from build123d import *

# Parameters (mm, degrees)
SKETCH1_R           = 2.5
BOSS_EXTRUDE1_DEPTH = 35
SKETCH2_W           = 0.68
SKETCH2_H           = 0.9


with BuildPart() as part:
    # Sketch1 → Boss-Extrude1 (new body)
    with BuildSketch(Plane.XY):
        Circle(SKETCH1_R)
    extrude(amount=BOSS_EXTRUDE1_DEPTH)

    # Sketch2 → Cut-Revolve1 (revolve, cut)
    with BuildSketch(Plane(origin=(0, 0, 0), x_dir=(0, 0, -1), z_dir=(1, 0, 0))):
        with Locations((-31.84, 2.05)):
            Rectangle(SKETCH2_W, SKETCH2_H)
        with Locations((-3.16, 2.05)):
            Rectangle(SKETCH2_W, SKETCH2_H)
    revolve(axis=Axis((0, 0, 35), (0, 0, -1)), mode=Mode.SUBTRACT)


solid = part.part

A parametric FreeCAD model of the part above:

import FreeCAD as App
import Part
import Sketcher

V = App.Vector
Q = App.Units.Quantity

doc = App.newDocument("Part")
body = doc.addObject("PartDesign::Body", "Body")

sketch1 = body.newObject("Sketcher::SketchObject", "Sketch")
sketch1.AttachmentSupport = (doc.getObject("XY_Plane"), [""])
sketch1.MapMode = "FlatFace"
sketch1.addGeometry(Part.Circle(V(0, 0, 0), V(0, 0, 1), 2.5), False)
sketch1.addConstraint([
    Sketcher.Constraint("Coincident", 0, 3, -1, 1),
    Sketcher.Constraint("Diameter", 0, Q("5 mm")),
])
pad1 = body.newObject("PartDesign::Pad", "Pad")
pad1.Profile = sketch1
pad1.Length = 35

sketch2 = body.newObject("Sketcher::SketchObject", "Sketch001")
sketch2.AttachmentSupport = (doc.getObject("YZ_Plane"), [""])
sketch2.MapMode = "FlatFace"
sketch2.addGeometry([
    Part.LineSegment(V(2.5, 32.2, 0), V(1.6, 32.2, 0)),
    Part.LineSegment(V(1.6, 32.2, 0), V(1.6, 31.5, 0)),
    Part.LineSegment(V(1.6, 31.5, 0), V(2.5, 31.5, 0)),
    Part.LineSegment(V(2.5, 31.5, 0), V(2.5, 32.2, 0)),
    Part.LineSegment(V(2.5, 3.5, 0), V(1.6, 3.5, 0)),
    Part.LineSegment(V(1.6, 3.5, 0), V(1.6, 2.8, 0)),
    Part.LineSegment(V(1.6, 2.8, 0), V(2.5, 2.8, 0)),
    Part.LineSegment(V(2.5, 2.8, 0), V(2.5, 3.5, 0)),
], False)
sketch2.addConstraint([
    Sketcher.Constraint("Coincident", 0, 2, 1, 1),
    Sketcher.Constraint("Coincident", 1, 2, 2, 1),
    Sketcher.Constraint("Coincident", 2, 2, 3, 1),
    Sketcher.Constraint("Coincident", 3, 2, 0, 1),
    Sketcher.Constraint("Coincident", 4, 2, 5, 1),
    Sketcher.Constraint("Coincident", 5, 2, 6, 1),
    Sketcher.Constraint("Coincident", 6, 2, 7, 1),
    Sketcher.Constraint("Coincident", 7, 2, 4, 1),
    Sketcher.Constraint("Horizontal", 0),
    Sketcher.Constraint("Vertical", 1),
    Sketcher.Constraint("Horizontal", 2),
    Sketcher.Constraint("Vertical", 3),
    Sketcher.Constraint("Horizontal", 4),
    Sketcher.Constraint("Vertical", 5),
    Sketcher.Constraint("Horizontal", 6),
    Sketcher.Constraint("Vertical", 7),
    Sketcher.Constraint("Vertical", 1, 2, 4, 2),
    Sketcher.Constraint("Vertical", 3, 2, 6, 2),
    Sketcher.Constraint("Equal", 3, 5),
    Sketcher.Constraint("DistanceX", 0, 2, 0, 1, Q("0.9 mm")),
    Sketcher.Constraint("DistanceY", 4, 2, 1, 2, Q("28 mm")),
    Sketcher.Constraint("DistanceY", 1, 2, 1, 1, Q("0.68 mm")),
    Sketcher.Constraint("DistanceX", -1, 1, 0, 2, Q("1.6 mm")),
    Sketcher.Constraint("DistanceY", -1, 1, 1, 2, Q("31.5 mm")),
])
groove = body.newObject("PartDesign::Groove", "Groove")
groove.Profile = sketch2
groove.ReferenceAxis = (sketch2, ["V_Axis"])
groove.Angle = 360

doc.recompute()
